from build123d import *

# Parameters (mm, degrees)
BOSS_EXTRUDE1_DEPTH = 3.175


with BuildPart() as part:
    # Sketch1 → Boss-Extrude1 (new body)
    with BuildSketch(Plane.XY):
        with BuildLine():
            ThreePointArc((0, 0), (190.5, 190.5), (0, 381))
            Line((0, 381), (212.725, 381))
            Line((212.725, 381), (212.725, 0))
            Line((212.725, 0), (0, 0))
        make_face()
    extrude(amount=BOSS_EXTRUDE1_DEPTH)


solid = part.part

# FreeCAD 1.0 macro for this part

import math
import FreeCAD as App
import Part
import Sketcher
Q = App.Units.Quantity

doc = App.newDocument("Part")
body = doc.addObject("PartDesign::Body", "Body")

sketch1 = body.newObject("Sketcher::SketchObject", "Sketch")
sketch1.AttachmentSupport = (doc.getObject("XY_Plane"), [""])
sketch1.MapMode = "FlatFace"
sketch1.addGeometry(Part.ArcOfCircle(Part.Circle(App.Vector(0, 190, 0), App.Vector(0, 0, 1), 190), math.radians(-90), math.radians(90)), False)
sketch1.addGeometry(Part.LineSegment(App.Vector(0, 0, 0), App.Vector(213, 0, 0)), False)
sketch1.addGeometry(Part.LineSegment(App.Vector(213, 0, 0), App.Vector(213, 381, 0)), False)
sketch1.addGeometry(Part.LineSegment(App.Vector(213, 381, 0), App.Vector(0, 381, 0)), False)
sketch1.addConstraint(Sketcher.Constraint("Tangent", 0, 1, 1, 1))
sketch1.addConstraint(Sketcher.Constraint("Coincident", 1, 2, 2, 1))
sketch1.addConstraint(Sketcher.Constraint("Coincident", 2, 2, 3, 1))
sketch1.addConstraint(Sketcher.Constraint("Tangent", 3, 2, 0, 2))
sketch1.addConstraint(Sketcher.Constraint("Horizontal", 1))
sketch1.addConstraint(Sketcher.Constraint("Vertical", 2))
sketch1.addConstraint(Sketcher.Constraint("Horizontal", 3))
sketch1.addConstraint(Sketcher.Constraint("Coincident", 0, 1, -1, 1))
sketch1.addConstraint(Sketcher.Constraint("Radius", 0, Q("7.5 in")))
sketch1.addConstraint(Sketcher.Constraint("DistanceX", 1, 1, 1, 2, Q("8.375 in")))
pad1 = body.newObject("PartDesign::Pad", "Pad")
pad1.Profile = sketch1
pad1.Length = Q("0.125 in")

doc.recompute()
